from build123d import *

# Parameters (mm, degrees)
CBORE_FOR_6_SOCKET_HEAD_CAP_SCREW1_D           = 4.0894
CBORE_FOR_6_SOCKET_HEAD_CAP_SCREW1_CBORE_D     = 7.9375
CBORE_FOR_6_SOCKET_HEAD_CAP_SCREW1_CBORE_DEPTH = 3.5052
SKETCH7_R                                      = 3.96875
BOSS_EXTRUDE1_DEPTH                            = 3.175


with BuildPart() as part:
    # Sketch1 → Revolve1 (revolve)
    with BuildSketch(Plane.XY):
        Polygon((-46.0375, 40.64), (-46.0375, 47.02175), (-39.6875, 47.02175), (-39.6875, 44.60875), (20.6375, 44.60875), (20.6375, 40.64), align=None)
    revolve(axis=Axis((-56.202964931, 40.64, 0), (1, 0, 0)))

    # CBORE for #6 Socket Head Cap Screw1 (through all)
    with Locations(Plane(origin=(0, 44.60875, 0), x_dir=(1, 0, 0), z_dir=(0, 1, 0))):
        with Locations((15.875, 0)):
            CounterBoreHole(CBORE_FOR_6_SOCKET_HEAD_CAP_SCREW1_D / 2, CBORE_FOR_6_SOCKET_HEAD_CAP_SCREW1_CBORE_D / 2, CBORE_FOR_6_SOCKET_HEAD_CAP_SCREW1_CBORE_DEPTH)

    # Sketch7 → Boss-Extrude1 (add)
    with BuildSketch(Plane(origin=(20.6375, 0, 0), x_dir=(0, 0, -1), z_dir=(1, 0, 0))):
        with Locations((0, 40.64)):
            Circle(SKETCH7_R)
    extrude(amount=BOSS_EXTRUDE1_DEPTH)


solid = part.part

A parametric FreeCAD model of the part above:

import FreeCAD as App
import Part
import Sketcher

V = App.Vector
Q = App.Units.Quantity


def add_polygon(sketch, points):
    """Adds a closed chain of lines whose ends are joined by coincident constraints."""
    first, n = sketch.GeometryCount, len(points)
    for a, b in zip(points, points[1:] + points[:1]):
        sketch.addGeometry(Part.LineSegment(App.Vector(*a, 0), App.Vector(*b, 0)), False)
    for i in range(n):
        sketch.addConstraint(Sketcher.Constraint("Coincident", first + i, 2, first + (i + 1) % n, 1))

doc = App.newDocument("Part")
body = doc.addObject("PartDesign::Body", "Body")

# Sketch on XY plane
sketch1 = doc.addObject("Sketcher::SketchObject", "Sketch")
body.addObject(sketch1)
sketch1.AttachmentSupport = (doc.XY_Plane, [""])
sketch1.MapMode = "FlatFace"
add_polygon(sketch1, [(-46, 47), (-46, 40.6), (20.6, 40.6), (20.6, 44.6), (-39.7, 44.6), (-39.7, 47)])  # lines 0-5
sketch1.addGeometry(Part.LineSegment(V(-46, 40.6, 0), V(20.6, 40.6, 0)), True)  # axis
sketch1.addConstraint(Sketcher.Constraint("Vertical", 0))
sketch1.addConstraint(Sketcher.Constraint("Horizontal", 1))
sketch1.addConstraint(Sketcher.Constraint("Vertical", 2))
sketch1.addConstraint(Sketcher.Constraint("Horizontal", 3))
sketch1.addConstraint(Sketcher.Constraint("Vertical", 4))
sketch1.addConstraint(Sketcher.Constraint("Horizontal", 5))
sketch1.addConstraint(Sketcher.Constraint("Horizontal", 6))
sketch1.addConstraint(Sketcher.Constraint("Coincident", 6, 1, 0, 2))
sketch1.addConstraint(Sketcher.Constraint("Vertical", 2, 2, 6, 2))
sketch1.addConstraint(Sketcher.Constraint("DistanceX", 5, 2, 5, 1, Q("0.25 in")))
sketch1.addConstraint(Sketcher.Constraint("DistanceY", -1, 1, 0, 2, Q("1.6 in")))
sketch1.addConstraint(Sketcher.Constraint("DistanceX", 1, 1, 1, 2, Q("2.625 in")))
sketch1.addConstraint(Sketcher.Constraint("DistanceY", 2, 1, 2, 2, Q("0.15625 in")))
sketch1.addConstraint(Sketcher.Constraint("DistanceY", 4, 1, 4, 2, Q("0.095 in")))
sketch1.addConstraint(Sketcher.Constraint("DistanceX", 0, 2, -1, 1, Q("1.8125 in")))
revolution = doc.addObject("PartDesign::Revolution", "Revolution")
body.addObject(revolution)
revolution.Profile = sketch1
revolution.ReferenceAxis = (sketch1, ["Axis0"])
revolution.Angle = 360

# Sketch on XZ plane
sketch2 = doc.addObject("Sketcher::SketchObject", "Sketch001")
body.addObject(sketch2)
sketch2.AttachmentSupport = (doc.XZ_Plane, [""])
sketch2.MapMode = "FlatFace"
sketch2.AttachmentOffset = App.Placement(V(0, 0, -44.60875), App.Rotation())
sketch2.addGeometry(Part.Circle(V(15.9, 0, 0), V(0, 0, 1), 2), False)
sketch2.addConstraint(Sketcher.Constraint("PointOnObject", 0, 3, -1))
sketch2.addConstraint(Sketcher.Constraint("Diameter", 0, Q("0.161 in")))
sketch2.addConstraint(Sketcher.Constraint("DistanceX", -1, 1, 0, 3, Q("0.625 in")))
doc.recompute()
hole = doc.addObject("PartDesign::Hole", "Hole")
body.addObject(hole)
hole.Profile = sketch2
hole.ThreadType = "None"
hole.Diameter = Q("0.161 in")
hole.DepthType = "ThroughAll"
hole.HoleCutType = "Counterbore"
hole.HoleCutDiameter = Q("0.3125 in")
hole.HoleCutDepth = Q("0.138 in")
hole.Reversed = True

# Sketch on YZ plane
sketch3 = doc.addObject("Sketcher::SketchObject", "Sketch002")
body.addObject(sketch3)
sketch3.AttachmentSupport = (doc.YZ_Plane, [""])
sketch3.MapMode = "FlatFace"
sketch3.AttachmentOffset = App.Placement(V(0, 0, 0.8125 * 25.4), App.Rotation())
sketch3.addGeometry(Part.Circle(V(40.6, 0, 0), V(0, 0, 1), 4), False)
sketch3.addConstraint(Sketcher.Constraint("PointOnObject", 0, 3, -1))
sketch3.addConstraint(Sketcher.Constraint("Diameter", 0, Q("0.3125 in")))
sketch3.addConstraint(Sketcher.Constraint("DistanceX", -1, 1, 0, 3, Q("1.6 in")))
pad1 = doc.addObject("PartDesign::Pad", "Pad")
body.addObject(pad1)
pad1.Profile = sketch3
pad1.Length = Q("0.125 in")

doc.recompute()
